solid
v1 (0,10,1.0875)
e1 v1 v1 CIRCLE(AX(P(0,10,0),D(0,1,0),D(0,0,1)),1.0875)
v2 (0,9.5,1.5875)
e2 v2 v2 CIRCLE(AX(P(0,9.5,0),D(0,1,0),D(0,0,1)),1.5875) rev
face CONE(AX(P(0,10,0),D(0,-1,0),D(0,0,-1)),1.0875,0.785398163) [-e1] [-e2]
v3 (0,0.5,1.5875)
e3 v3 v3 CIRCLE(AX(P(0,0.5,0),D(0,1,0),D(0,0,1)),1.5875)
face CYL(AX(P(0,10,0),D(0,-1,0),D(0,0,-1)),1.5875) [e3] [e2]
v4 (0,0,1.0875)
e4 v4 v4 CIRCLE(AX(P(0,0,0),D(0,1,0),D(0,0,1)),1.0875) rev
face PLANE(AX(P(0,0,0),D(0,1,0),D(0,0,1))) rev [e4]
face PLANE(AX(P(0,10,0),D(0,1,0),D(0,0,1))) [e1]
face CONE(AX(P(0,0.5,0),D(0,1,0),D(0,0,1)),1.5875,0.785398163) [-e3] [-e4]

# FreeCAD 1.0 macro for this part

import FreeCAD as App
import Part
import Sketcher
Q = App.Units.Quantity


def edges_at(feature, points):
    """Names of the edges that pass closest to the given points."""
    edges = feature.Shape.Edges
    near = lambda p: min(range(len(edges)), key=lambda i: edges[i].distToShape(Part.Vertex(*p))[0])
    return sorted({f"Edge{near(p) + 1}" for p in points})

doc = App.newDocument("Part")
body = doc.addObject("PartDesign::Body", "Body")

# Sketch on XZ plane
sketch1 = body.newObject("Sketcher::SketchObject", "Sketch")
sketch1.AttachmentSupport = (doc.getObject("XZ_Plane"), [""])
sketch1.MapMode = "FlatFace"
sketch1.addGeometry(Part.Circle(App.Vector(0, 0, 0), App.Vector(0, 0, 1), 1.5875), False)
sketch1.addConstraint([
    Sketcher.Constraint("Coincident", 0, 3, -1, 1),
    Sketcher.Constraint("Diameter", 0, Q("3.175 mm")),
])
pad1 = body.newObject("PartDesign::Pad", "Pad")
pad1.Profile = sketch1
pad1.Length = 10
pad1.Reversed = True
doc.recompute()

chamfer = body.newObject("PartDesign::Chamfer", "Chamfer")
chamfer.Base = (pad1, edges_at(pad1, [(0, 10, -1.587)]))
chamfer.Size = 0.5
doc.recompute()

chamfer2 = body.newObject("PartDesign::Chamfer", "Chamfer001")
chamfer2.Base = (chamfer, edges_at(chamfer, [(0, 0, -1.587)]))
chamfer2.Size = 0.5

doc.recompute()
